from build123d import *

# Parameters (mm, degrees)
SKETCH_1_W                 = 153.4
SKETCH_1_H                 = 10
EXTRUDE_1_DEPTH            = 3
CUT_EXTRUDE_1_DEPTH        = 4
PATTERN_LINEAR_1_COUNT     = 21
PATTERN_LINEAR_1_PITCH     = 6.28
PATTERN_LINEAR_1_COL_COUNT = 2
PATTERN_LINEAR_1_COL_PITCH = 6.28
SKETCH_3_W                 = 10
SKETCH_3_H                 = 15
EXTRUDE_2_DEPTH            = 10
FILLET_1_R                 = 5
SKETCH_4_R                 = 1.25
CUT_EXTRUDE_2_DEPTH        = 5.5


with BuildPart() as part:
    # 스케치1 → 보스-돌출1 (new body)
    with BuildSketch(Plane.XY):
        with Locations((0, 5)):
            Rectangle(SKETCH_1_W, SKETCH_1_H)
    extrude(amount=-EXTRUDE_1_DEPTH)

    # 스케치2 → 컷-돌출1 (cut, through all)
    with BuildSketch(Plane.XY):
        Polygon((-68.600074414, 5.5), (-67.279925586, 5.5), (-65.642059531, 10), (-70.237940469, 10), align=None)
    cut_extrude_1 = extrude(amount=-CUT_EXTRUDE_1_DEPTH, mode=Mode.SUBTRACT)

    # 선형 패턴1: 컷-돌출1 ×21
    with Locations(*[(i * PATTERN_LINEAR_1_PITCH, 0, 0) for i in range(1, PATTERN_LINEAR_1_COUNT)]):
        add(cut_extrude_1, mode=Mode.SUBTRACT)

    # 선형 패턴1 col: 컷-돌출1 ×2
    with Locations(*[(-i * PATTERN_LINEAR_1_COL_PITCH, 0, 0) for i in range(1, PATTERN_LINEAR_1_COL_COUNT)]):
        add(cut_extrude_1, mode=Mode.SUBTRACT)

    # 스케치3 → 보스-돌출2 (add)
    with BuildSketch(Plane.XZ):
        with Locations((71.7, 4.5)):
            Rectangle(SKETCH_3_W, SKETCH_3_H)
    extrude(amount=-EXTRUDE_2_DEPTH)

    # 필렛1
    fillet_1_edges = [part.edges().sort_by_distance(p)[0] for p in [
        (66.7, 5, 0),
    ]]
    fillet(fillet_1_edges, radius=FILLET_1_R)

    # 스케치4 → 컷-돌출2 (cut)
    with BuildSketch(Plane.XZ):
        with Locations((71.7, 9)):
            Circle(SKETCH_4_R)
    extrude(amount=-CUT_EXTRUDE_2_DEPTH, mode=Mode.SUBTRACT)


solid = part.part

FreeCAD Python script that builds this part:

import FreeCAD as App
import Part
import Sketcher
Q = App.Units.Quantity


def edges_at(feature, points):
    """Names of the edges that pass closest to the given points."""
    edges = feature.Shape.Edges
    near = lambda p: min(range(len(edges)), key=lambda i: edges[i].distToShape(Part.Vertex(*p))[0])
    return sorted({f"Edge{near(p) + 1}" for p in points})

doc = App.newDocument("Part")
body = doc.addObject("PartDesign::Body", "Body")

sketch1 = body.newObject("Sketcher::SketchObject", "Sketch")
sketch1.AttachmentSupport = (doc.getObject("XY_Plane"), [""])
sketch1.MapMode = "FlatFace"
sketch1.addGeometry(Part.LineSegment(App.Vector(-77, 10, 0), App.Vector(-77, 0, 0)), False)
sketch1.addGeometry(Part.LineSegment(App.Vector(-77, 0, 0), App.Vector(77, 0, 0)), False)
sketch1.addGeometry(Part.LineSegment(App.Vector(77, 0, 0), App.Vector(77, 10, 0)), False)
sketch1.addGeometry(Part.LineSegment(App.Vector(77, 10, 0), App.Vector(-77, 10, 0)), False)
sketch1.addConstraint(Sketcher.Constraint("Coincident", 0, 2, 1, 1))
sketch1.addConstraint(Sketcher.Constraint("Coincident", 1, 2, 2, 1))
sketch1.addConstraint(Sketcher.Constraint("Coincident", 2, 2, 3, 1))
sketch1.addConstraint(Sketcher.Constraint("Coincident", 3, 2, 0, 1))
sketch1.addConstraint(Sketcher.Constraint("Vertical", 0))
sketch1.addConstraint(Sketcher.Constraint("Horizontal", 1))
sketch1.addConstraint(Sketcher.Constraint("Vertical", 2))
sketch1.addConstraint(Sketcher.Constraint("Horizontal", 3))
sketch1.addConstraint(Sketcher.Constraint("Symmetric", 0, 2, 1, 2, -1, 1))
sketch1.addConstraint(Sketcher.Constraint("DistanceY", 0, 2, 0, 1, Q("10 mm")))
sketch1.addConstraint(Sketcher.Constraint("DistanceX", 1, 1, 1, 2, Q("153.4 mm")))
pad1 = body.newObject("PartDesign::Pad", "Pad")
pad1.Profile = sketch1
pad1.Length = 3
pad1.Reversed = True

sketch2 = body.newObject("Sketcher::SketchObject", "Sketch001")
sketch2.AttachmentSupport = (doc.getObject("XY_Plane"), [""])
sketch2.MapMode = "FlatFace"
sketch2.addGeometry(Part.LineSegment(App.Vector(-68.6, 5.5, 0), App.Vector(-67.3, 5.5, 0)), False)
sketch2.addGeometry(Part.LineSegment(App.Vector(-67.3, 5.5, 0), App.Vector(-65.6, 10, 0)), False)
sketch2.addGeometry(Part.LineSegment(App.Vector(-65.6, 10, 0), App.Vector(-70.2, 10, 0)), False)
sketch2.addGeometry(Part.LineSegment(App.Vector(-70.2, 10, 0), App.Vector(-68.6, 5.5, 0)), False)
sketch2.addConstraint(Sketcher.Constraint("Coincident", 0, 2, 1, 1))
sketch2.addConstraint(Sketcher.Constraint("Coincident", 1, 2, 2, 1))
sketch2.addConstraint(Sketcher.Constraint("Coincident", 2, 2, 3, 1))
sketch2.addConstraint(Sketcher.Constraint("Coincident", 3, 2, 0, 1))
sketch2.addConstraint(Sketcher.Constraint("Horizontal", 0))
sketch2.addConstraint(Sketcher.Constraint("Horizontal", 2))
sketch2.addConstraint(Sketcher.Constraint("Equal", 1, 3))
sketch2.addConstraint(Sketcher.Constraint("Angle", 1, Q("70 deg")))
sketch2.addConstraint(Sketcher.Constraint("DistanceY", -1, 1, 1, 2, Q("10 mm")))
sketch2.addConstraint(Sketcher.Constraint("DistanceY", -1, 1, 0, 2, Q("5.5 mm")))
sketch2.addConstraint(Sketcher.Constraint("DistanceX", 0, 1, 0, 2, Q("1.320149 mm")))
sketch2.addConstraint(Sketcher.Constraint("DistanceX", 1, 2, -1, 1, Q("65.64206 mm")))
pocket1 = body.newObject("PartDesign::Pocket", "Pocket")
pocket1.Profile = sketch2
pocket1.Type = "ThroughAll"
doc.recompute()

linearpattern = body.newObject("PartDesign::LinearPattern", "LinearPattern")
linearpattern.Originals = [pocket1]
linearpattern.Direction = (doc.getObject("X_Axis"), [""])
linearpattern.Mode = "offset"
linearpattern.Offset = 6.28
linearpattern.Occurrences = 21
body.Tip = linearpattern
doc.recompute()

linearpattern2 = body.newObject("PartDesign::LinearPattern", "LinearPattern001")
linearpattern2.Originals = [pocket1]
linearpattern2.Direction = (doc.getObject("X_Axis"), [""])
linearpattern2.Mode = "offset"
linearpattern2.Offset = 6.28
linearpattern2.Occurrences = 2
linearpattern2.Reversed = True
body.Tip = linearpattern2

sketch3 = body.newObject("Sketcher::SketchObject", "Sketch002")
sketch3.AttachmentSupport = (doc.getObject("XZ_Plane"), [""])
sketch3.MapMode = "FlatFace"
sketch3.addGeometry(Part.LineSegment(App.Vector(67, 12, 0), App.Vector(67, -3, 0)), False)
sketch3.addGeometry(Part.LineSegment(App.Vector(67, -3, 0), App.Vector(77, -3, 0)), False)
sketch3.addGeometry(Part.LineSegment(App.Vector(77, -3, 0), App.Vector(77, 12, 0)), False)
sketch3.addGeometry(Part.LineSegment(App.Vector(77, 12, 0), App.Vector(67, 12, 0)), False)
sketch3.addConstraint(Sketcher.Constraint("Coincident", 0, 2, 1, 1))
sketch3.addConstraint(Sketcher.Constraint("Coincident", 1, 2, 2, 1))
sketch3.addConstraint(Sketcher.Constraint("Coincident", 2, 2, 3, 1))
sketch3.addConstraint(Sketcher.Constraint("Coincident", 3, 2, 0, 1))
sketch3.addConstraint(Sketcher.Constraint("Vertical", 0))
sketch3.addConstraint(Sketcher.Constraint("Horizontal", 1))
sketch3.addConstraint(Sketcher.Constraint("Vertical", 2))
sketch3.addConstraint(Sketcher.Constraint("Horizontal", 3))
sketch3.addConstraint(Sketcher.Constraint("DistanceX", 1, 1, 1, 2, Q("10 mm")))
sketch3.addConstraint(Sketcher.Constraint("DistanceY", 0, 2, 0, 1, Q("15 mm")))
sketch3.addConstraint(Sketcher.Constraint("DistanceY", 0, 2, -1, 1, Q("3 mm")))
sketch3.addConstraint(Sketcher.Constraint("DistanceX", -1, 1, 0, 2, Q("66.7 mm")))
pad2 = body.newObject("PartDesign::Pad", "Pad001")
pad2.Profile = sketch3
pad2.Length = 10
pad2.Reversed = True
doc.recompute()

fillet = body.newObject("PartDesign::Fillet", "Fillet")
fillet.Base = (pad2, edges_at(pad2, [(66.7, 5, 0)]))
fillet.Radius = 5

sketch4 = body.newObject("Sketcher::SketchObject", "Sketch003")
sketch4.AttachmentSupport = (doc.getObject("XZ_Plane"), [""])
sketch4.MapMode = "FlatFace"
sketch4.addGeometry(Part.Circle(App.Vector(71.7, 9, 0), App.Vector(0, 0, 1), 1.2), False)
sketch4.addConstraint(Sketcher.Constraint("Diameter", 0, Q("2.5 mm")))
sketch4.addConstraint(Sketcher.Constraint("DistanceY", -1, 1, 0, 3, Q("9 mm")))
sketch4.addConstraint(Sketcher.Constraint("DistanceX", -1, 1, 0, 3, Q("71.7 mm")))
pocket2 = body.newObject("PartDesign::Pocket", "Pocket001")
pocket2.Profile = sketch4
pocket2.Length = 5.5

doc.recompute()
